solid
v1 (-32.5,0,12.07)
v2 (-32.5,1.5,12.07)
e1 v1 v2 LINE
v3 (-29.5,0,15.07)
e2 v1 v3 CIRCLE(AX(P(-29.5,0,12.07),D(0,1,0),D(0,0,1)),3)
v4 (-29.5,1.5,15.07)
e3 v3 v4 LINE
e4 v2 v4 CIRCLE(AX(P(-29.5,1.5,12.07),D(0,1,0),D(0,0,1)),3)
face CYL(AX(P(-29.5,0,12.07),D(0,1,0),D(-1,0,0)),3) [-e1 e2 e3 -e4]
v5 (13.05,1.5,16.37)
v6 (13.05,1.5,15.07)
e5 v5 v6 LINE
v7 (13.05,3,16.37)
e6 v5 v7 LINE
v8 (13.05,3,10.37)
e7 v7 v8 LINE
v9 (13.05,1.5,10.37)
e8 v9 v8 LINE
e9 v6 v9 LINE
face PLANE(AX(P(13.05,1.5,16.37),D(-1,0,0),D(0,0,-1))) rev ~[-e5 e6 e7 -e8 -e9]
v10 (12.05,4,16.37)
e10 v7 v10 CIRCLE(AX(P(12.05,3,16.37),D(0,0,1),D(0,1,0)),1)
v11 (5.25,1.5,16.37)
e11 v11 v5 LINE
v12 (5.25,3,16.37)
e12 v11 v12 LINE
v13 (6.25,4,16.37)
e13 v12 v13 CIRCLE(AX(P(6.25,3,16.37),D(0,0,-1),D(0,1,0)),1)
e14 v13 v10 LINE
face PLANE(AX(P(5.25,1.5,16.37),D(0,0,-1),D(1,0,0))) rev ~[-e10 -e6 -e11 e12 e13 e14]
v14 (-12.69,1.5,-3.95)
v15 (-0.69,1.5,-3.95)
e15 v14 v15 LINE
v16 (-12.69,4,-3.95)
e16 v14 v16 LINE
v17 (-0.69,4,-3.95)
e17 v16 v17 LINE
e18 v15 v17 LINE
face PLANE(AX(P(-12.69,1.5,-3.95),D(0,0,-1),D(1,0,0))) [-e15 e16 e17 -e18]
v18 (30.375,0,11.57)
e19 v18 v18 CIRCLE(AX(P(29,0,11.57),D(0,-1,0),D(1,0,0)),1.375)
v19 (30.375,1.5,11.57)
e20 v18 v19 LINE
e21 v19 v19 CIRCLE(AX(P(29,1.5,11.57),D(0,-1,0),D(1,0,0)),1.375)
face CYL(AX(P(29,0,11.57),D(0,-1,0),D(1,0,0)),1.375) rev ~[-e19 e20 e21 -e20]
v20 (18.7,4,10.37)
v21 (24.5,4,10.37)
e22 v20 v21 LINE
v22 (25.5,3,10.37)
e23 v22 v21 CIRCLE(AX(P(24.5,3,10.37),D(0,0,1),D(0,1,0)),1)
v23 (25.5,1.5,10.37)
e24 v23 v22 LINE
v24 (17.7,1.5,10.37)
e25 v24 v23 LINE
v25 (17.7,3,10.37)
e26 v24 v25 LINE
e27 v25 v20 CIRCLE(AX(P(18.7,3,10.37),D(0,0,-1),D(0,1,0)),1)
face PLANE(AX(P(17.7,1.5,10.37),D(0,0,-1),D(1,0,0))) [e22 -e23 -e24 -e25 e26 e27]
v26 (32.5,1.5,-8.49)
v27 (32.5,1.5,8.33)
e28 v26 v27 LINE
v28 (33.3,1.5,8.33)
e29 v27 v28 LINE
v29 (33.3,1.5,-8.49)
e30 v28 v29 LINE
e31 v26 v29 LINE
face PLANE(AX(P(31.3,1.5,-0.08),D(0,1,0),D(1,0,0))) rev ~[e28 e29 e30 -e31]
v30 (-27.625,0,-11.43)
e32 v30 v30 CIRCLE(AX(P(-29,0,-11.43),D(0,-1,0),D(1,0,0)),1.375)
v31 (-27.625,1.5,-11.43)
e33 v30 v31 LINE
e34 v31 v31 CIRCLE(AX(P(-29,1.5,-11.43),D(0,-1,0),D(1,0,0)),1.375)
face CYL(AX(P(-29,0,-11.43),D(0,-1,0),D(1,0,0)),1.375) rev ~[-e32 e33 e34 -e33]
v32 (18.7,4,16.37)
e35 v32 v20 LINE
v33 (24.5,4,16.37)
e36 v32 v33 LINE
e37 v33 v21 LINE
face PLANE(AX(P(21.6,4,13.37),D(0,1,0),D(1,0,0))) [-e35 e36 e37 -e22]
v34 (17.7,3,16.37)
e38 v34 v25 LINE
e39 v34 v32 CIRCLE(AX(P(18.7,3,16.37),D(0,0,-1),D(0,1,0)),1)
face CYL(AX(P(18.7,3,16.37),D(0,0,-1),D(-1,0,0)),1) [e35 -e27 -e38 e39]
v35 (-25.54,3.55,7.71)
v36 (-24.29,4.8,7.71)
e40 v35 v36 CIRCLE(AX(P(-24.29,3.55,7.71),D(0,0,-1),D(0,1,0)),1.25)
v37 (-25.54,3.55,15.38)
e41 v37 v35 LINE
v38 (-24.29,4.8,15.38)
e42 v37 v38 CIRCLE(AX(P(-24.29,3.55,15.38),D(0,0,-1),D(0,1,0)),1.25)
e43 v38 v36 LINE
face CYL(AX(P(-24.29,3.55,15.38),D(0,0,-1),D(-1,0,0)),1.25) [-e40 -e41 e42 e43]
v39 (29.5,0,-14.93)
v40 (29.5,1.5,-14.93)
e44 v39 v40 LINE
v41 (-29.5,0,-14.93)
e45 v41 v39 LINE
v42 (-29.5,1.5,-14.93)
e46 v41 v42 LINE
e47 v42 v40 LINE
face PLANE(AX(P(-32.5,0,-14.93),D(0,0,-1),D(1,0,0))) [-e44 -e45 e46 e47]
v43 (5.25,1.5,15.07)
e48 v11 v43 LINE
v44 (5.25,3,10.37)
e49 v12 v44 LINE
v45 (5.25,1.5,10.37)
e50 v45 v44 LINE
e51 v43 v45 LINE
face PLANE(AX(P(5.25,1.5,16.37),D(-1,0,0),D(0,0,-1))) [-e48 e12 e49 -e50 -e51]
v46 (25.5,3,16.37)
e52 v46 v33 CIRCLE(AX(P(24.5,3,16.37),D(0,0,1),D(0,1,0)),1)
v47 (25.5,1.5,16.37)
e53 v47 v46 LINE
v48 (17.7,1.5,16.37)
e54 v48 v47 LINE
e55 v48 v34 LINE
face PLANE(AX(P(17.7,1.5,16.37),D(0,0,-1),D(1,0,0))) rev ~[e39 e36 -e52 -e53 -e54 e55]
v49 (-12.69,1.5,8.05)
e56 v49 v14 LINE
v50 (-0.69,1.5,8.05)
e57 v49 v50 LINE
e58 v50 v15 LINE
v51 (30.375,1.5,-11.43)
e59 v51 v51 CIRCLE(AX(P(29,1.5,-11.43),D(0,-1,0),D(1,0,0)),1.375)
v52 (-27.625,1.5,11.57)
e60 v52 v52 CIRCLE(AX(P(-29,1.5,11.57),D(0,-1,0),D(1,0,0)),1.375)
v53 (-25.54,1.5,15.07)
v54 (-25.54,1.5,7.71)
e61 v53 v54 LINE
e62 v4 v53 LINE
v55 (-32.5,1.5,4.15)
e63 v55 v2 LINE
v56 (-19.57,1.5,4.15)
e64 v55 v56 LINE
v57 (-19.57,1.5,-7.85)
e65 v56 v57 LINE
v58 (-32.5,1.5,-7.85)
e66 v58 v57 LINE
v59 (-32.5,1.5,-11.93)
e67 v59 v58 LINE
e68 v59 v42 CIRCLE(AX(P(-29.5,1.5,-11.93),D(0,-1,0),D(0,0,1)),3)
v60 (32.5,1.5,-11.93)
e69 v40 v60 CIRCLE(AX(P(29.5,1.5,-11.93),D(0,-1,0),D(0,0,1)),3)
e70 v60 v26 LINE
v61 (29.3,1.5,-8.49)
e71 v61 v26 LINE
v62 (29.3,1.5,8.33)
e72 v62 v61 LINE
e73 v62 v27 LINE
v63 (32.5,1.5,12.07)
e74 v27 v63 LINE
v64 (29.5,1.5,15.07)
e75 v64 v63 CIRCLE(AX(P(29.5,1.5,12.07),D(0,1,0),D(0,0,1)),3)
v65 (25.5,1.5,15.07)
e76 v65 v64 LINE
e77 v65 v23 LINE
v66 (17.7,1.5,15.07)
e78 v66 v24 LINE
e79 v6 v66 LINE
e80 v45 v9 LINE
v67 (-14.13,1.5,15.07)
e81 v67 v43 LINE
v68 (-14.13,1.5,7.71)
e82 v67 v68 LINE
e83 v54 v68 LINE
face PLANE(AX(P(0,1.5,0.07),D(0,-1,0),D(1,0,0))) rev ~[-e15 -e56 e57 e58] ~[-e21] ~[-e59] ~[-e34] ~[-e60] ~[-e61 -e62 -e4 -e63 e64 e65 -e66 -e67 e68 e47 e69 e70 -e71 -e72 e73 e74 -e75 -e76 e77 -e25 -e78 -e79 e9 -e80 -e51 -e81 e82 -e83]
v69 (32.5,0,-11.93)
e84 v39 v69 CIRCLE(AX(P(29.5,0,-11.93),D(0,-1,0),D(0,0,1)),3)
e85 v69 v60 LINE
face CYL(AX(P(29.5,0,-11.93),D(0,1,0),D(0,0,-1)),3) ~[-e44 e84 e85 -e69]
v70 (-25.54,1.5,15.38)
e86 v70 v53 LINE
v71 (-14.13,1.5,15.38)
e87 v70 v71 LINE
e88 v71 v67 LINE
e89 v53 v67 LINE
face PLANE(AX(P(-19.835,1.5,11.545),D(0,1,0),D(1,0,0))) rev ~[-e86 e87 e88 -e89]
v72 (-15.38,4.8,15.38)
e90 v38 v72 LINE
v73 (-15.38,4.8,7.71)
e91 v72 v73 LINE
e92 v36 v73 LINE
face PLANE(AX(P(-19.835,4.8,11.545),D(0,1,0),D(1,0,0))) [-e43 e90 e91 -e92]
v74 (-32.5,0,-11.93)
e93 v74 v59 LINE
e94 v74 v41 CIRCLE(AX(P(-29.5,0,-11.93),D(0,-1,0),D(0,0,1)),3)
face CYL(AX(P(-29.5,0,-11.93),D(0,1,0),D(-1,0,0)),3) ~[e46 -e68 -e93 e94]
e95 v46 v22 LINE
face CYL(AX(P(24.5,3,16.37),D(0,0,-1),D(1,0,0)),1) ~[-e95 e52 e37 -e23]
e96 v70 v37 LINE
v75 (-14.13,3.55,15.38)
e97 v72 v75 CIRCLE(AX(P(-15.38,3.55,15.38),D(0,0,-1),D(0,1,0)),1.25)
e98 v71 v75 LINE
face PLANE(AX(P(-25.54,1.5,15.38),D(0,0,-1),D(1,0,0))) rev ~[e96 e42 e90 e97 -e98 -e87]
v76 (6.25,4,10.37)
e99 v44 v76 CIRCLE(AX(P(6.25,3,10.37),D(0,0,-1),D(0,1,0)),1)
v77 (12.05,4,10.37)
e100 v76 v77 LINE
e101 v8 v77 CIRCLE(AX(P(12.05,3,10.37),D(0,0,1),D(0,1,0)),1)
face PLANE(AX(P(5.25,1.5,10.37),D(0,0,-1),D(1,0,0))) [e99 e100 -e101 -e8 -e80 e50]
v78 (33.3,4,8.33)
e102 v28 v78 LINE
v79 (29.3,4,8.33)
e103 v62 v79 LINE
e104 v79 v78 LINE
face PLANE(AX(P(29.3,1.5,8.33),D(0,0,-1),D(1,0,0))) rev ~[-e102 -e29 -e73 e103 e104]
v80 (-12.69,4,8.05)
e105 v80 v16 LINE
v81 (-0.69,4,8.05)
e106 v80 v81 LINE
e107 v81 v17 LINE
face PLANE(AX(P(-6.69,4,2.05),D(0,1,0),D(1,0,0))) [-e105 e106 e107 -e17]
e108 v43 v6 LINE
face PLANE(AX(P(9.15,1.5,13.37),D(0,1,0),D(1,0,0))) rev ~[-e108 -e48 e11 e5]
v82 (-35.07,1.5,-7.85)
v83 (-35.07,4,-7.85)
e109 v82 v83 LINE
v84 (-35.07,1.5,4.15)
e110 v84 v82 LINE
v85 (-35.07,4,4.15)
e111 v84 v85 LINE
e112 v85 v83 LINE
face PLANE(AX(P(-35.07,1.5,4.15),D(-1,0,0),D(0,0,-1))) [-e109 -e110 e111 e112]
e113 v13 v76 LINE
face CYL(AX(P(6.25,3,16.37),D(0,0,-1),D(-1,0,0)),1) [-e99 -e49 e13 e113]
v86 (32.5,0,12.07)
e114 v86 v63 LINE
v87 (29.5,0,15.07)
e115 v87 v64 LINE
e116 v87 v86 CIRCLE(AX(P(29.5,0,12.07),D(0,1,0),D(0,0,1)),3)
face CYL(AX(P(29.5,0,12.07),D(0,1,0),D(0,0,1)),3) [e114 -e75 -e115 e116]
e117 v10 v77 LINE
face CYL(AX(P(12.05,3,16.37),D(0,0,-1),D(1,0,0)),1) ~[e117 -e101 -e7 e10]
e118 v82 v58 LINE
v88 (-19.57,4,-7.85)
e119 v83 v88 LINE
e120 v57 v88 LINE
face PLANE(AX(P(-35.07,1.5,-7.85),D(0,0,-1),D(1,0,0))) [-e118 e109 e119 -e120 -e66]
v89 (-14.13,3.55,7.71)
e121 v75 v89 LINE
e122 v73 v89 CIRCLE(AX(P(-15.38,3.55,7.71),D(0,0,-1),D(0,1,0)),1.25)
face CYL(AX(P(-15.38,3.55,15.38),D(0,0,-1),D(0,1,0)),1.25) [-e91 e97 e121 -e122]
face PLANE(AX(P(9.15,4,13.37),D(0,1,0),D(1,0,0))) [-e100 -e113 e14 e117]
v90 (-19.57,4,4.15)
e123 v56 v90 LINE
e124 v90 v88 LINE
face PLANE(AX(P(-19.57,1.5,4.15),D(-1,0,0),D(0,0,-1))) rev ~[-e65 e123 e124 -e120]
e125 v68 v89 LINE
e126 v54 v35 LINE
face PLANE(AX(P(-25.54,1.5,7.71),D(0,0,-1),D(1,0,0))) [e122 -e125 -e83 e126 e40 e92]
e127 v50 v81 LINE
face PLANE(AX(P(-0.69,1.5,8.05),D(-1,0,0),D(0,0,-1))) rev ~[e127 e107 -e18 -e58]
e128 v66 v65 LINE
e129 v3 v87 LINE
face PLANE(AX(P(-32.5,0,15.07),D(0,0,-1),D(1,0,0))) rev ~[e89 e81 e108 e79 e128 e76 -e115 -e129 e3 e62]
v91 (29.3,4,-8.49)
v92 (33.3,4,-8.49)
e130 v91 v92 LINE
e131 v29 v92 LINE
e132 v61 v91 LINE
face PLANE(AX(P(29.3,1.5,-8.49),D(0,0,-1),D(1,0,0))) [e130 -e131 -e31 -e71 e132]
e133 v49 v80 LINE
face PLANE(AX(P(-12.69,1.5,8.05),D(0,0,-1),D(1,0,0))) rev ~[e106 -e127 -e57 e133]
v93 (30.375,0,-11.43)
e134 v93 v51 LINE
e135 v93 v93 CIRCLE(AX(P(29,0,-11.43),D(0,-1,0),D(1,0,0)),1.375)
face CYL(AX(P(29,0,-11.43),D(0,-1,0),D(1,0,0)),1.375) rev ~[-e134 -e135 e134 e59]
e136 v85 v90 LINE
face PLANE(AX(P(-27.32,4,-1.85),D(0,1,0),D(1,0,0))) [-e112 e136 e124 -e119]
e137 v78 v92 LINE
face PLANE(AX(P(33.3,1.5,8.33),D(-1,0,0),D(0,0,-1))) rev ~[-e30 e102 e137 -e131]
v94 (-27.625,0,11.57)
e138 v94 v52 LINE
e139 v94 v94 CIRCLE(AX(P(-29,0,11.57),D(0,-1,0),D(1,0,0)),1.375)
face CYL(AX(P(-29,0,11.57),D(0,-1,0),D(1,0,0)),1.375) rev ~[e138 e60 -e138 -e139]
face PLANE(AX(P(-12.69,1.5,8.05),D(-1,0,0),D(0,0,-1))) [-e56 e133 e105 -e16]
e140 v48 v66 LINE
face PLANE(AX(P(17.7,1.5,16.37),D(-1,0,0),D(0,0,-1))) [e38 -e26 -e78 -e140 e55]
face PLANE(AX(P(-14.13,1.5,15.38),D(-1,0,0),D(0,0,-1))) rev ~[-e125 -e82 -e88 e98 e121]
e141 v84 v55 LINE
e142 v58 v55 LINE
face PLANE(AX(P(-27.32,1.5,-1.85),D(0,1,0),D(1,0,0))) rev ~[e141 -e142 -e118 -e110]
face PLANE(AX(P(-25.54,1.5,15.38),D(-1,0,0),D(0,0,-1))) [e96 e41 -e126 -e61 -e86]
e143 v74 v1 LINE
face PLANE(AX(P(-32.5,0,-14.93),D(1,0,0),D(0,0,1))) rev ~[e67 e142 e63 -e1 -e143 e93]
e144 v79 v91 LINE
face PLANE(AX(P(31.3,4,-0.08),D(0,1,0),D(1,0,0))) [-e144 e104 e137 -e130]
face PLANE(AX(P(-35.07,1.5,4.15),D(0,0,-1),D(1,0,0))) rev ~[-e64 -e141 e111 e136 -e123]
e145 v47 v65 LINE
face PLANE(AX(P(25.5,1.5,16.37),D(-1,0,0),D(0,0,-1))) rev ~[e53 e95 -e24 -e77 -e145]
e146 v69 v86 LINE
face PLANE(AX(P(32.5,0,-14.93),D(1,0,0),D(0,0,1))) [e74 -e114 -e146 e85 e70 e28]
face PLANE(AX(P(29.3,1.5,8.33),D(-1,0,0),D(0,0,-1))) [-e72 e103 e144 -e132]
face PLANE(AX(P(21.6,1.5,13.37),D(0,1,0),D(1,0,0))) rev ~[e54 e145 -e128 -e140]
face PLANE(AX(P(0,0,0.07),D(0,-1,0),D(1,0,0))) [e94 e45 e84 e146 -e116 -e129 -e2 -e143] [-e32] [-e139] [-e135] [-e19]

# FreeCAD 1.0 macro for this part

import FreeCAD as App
import Part
import Sketcher


def edges_at(feature, points):
    """Names of the edges that pass closest to the given points."""
    edges = feature.Shape.Edges
    near = lambda p: min(range(len(edges)), key=lambda i: edges[i].distToShape(Part.Vertex(*p))[0])
    return sorted({f"Edge{near(p) + 1}" for p in points})

doc = App.newDocument("Part")
body = doc.addObject("PartDesign::Body", "Body")

sketch1 = body.newObject("Sketcher::SketchObject", "Sketch")
sketch1.AttachmentSupport = (doc.getObject("XZ_Plane"), [""])
sketch1.MapMode = "FlatFace"
sketch1.addGeometry([
    Part.LineSegment(App.Vector(-32.5, 15.1, 0), App.Vector(-32.5, -14.9, 0)),
    Part.LineSegment(App.Vector(-32.5, -14.9, 0), App.Vector(32.5, -14.9, 0)),
    Part.LineSegment(App.Vector(32.5, -14.9, 0), App.Vector(32.5, 15.1, 0)),
    Part.LineSegment(App.Vector(32.5, 15.1, 0), App.Vector(-32.5, 15.1, 0)),
    Part.Circle(App.Vector(-29, -11.4, 0), App.Vector(0, 0, 1), 1.4),
    Part.Circle(App.Vector(29, -11.4, 0), App.Vector(0, 0, 1), 1.4),
    Part.Circle(App.Vector(-29, 11.6, 0), App.Vector(0, 0, 1), 1.4),
    Part.Circle(App.Vector(29, 11.6, 0), App.Vector(0, 0, 1), 1.4),
], False)
sketch1.addConstraint([
    Sketcher.Constraint("Coincident", 0, 2, 1, 1),
    Sketcher.Constraint("Coincident", 1, 2, 2, 1),
    Sketcher.Constraint("Coincident", 2, 2, 3, 1),
    Sketcher.Constraint("Coincident", 3, 2, 0, 1),
    Sketcher.Constraint("Vertical", 0),
    Sketcher.Constraint("Horizontal", 1),
    Sketcher.Constraint("Vertical", 2),
    Sketcher.Constraint("Horizontal", 3),
    Sketcher.Constraint("Equal", 4, 5),
    Sketcher.Constraint("Equal", 5, 6),
    Sketcher.Constraint("Equal", 6, 7),
    Sketcher.Constraint("Symmetric", 4, 3, 5, 3, -2),
    Sketcher.Constraint("Symmetric", 6, 3, 7, 3, -2),
    Sketcher.Constraint("Vertical", 4, 3, 6, 3),
    Sketcher.Constraint("Diameter", 4, 2.75),
    Sketcher.Constraint("DistanceX", 1, 1, 1, 2, 65.0),
    Sketcher.Constraint("DistanceY", 0, 2, 0, 1, 30.0),
    Sketcher.Constraint("DistanceX", 4, 3, -1, 1, 29.0),
    Sketcher.Constraint("DistanceY", 4, 3, 6, 3, 23.0),
    Sketcher.Constraint("DistanceX", 0, 2, -1, 1, 32.5),
    Sketcher.Constraint("DistanceY", 0, 2, 4, 3, 3.5),
    Sketcher.Constraint("DistanceY", 4, 3, -1, 1, 11.43),
])
pad1 = body.newObject("PartDesign::Pad", "Pad")
pad1.Profile = sketch1
pad1.Length = 1.5
pad1.Reversed = True
doc.recompute()

fillet = body.newObject("PartDesign::Fillet", "Fillet")
fillet.Base = (pad1, edges_at(pad1, [
    (-32.5, 0.75, 15.07),
    (-32.5, 0.75, -14.93),
    (32.5, 0.75, -14.93),
    (32.5, 0.75, 15.07),
]))
fillet.Radius = 3

sketch2 = body.newObject("Sketcher::SketchObject", "Sketch001")
sketch2.AttachmentSupport = (doc.getObject("XZ_Plane"), [""])
sketch2.MapMode = "FlatFace"
sketch2.AttachmentOffset = App.Placement(App.Vector(0, 0, -1.5), App.Rotation())
sketch2.addGeometry([
    Part.LineSegment(App.Vector(-35.1, -7.8, 0), App.Vector(-35.1, 4.2, 0)),
    Part.LineSegment(App.Vector(-35.1, 4.2, 0), App.Vector(-19.6, 4.2, 0)),
    Part.LineSegment(App.Vector(-19.6, 4.2, 0), App.Vector(-19.6, -7.8, 0)),
    Part.LineSegment(App.Vector(-19.6, -7.8, 0), App.Vector(-35.1, -7.8, 0)),
    Part.LineSegment(App.Vector(-12.7, -4, 0), App.Vector(-12.7, 8.1, 0)),
    Part.LineSegment(App.Vector(-12.7, 8.1, 0), App.Vector(-0.7, 8.1, 0)),
    Part.LineSegment(App.Vector(-0.7, 8.1, 0), App.Vector(-0.7, -4, 0)),
    Part.LineSegment(App.Vector(-0.7, -4, 0), App.Vector(-12.7, -4, 0)),
    Part.LineSegment(App.Vector(29.3, -8.5, 0), App.Vector(29.3, 8.3, 0)),
    Part.LineSegment(App.Vector(29.3, 8.3, 0), App.Vector(33.3, 8.3, 0)),
    Part.LineSegment(App.Vector(33.3, 8.3, 0), App.Vector(33.3, -8.5, 0)),
    Part.LineSegment(App.Vector(33.3, -8.5, 0), App.Vector(29.3, -8.5, 0)),
    Part.LineSegment(App.Vector(17.7, 10.4, 0), App.Vector(17.7, 16.4, 0)),
    Part.LineSegment(App.Vector(17.7, 16.4, 0), App.Vector(25.5, 16.4, 0)),
    Part.LineSegment(App.Vector(25.5, 16.4, 0), App.Vector(25.5, 10.4, 0)),
    Part.LineSegment(App.Vector(25.5, 10.4, 0), App.Vector(17.7, 10.4, 0)),
    Part.LineSegment(App.Vector(5.2, 10.4, 0), App.Vector(5.2, 16.4, 0)),
    Part.LineSegment(App.Vector(5.2, 16.4, 0), App.Vector(13.1, 16.4, 0)),
    Part.LineSegment(App.Vector(13.1, 16.4, 0), App.Vector(13.1, 10.4, 0)),
    Part.LineSegment(App.Vector(13.1, 10.4, 0), App.Vector(5.2, 10.4, 0)),
], False)
sketch2.addConstraint([
    Sketcher.Constraint("Coincident", 0, 2, 1, 1),
    Sketcher.Constraint("Coincident", 1, 2, 2, 1),
    Sketcher.Constraint("Coincident", 2, 2, 3, 1),
    Sketcher.Constraint("Coincident", 3, 2, 0, 1),
    Sketcher.Constraint("Coincident", 4, 2, 5, 1),
    Sketcher.Constraint("Coincident", 5, 2, 6, 1),
    Sketcher.Constraint("Coincident", 6, 2, 7, 1),
    Sketcher.Constraint("Coincident", 7, 2, 4, 1),
    Sketcher.Constraint("Coincident", 8, 2, 9, 1),
    Sketcher.Constraint("Coincident", 9, 2, 10, 1),
    Sketcher.Constraint("Coincident", 10, 2, 11, 1),
    Sketcher.Constraint("Coincident", 11, 2, 8, 1),
    Sketcher.Constraint("Coincident", 12, 2, 13, 1),
    Sketcher.Constraint("Coincident", 13, 2, 14, 1),
    Sketcher.Constraint("Coincident", 14, 2, 15, 1),
    Sketcher.Constraint("Coincident", 15, 2, 12, 1),
    Sketcher.Constraint("Coincident", 16, 2, 17, 1),
    Sketcher.Constraint("Coincident", 17, 2, 18, 1),
    Sketcher.Constraint("Coincident", 18, 2, 19, 1),
    Sketcher.Constraint("Coincident", 19, 2, 16, 1),
    Sketcher.Constraint("Vertical", 0),
    Sketcher.Constraint("Horizontal", 1),
    Sketcher.Constraint("Vertical", 2),
    Sketcher.Constraint("Horizontal", 3),
    Sketcher.Constraint("Vertical", 4),
    Sketcher.Constraint("Horizontal", 5),
    Sketcher.Constraint("Vertical", 6),
    Sketcher.Constraint("Horizontal", 7),
    Sketcher.Constraint("Vertical", 8),
    Sketcher.Constraint("Horizontal", 9),
    Sketcher.Constraint("Vertical", 10),
    Sketcher.Constraint("Horizontal", 11),
    Sketcher.Constraint("Vertical", 12),
    Sketcher.Constraint("Horizontal", 13),
    Sketcher.Constraint("Vertical", 14),
    Sketcher.Constraint("Horizontal", 15),
    Sketcher.Constraint("Vertical", 16),
    Sketcher.Constraint("Horizontal", 17),
    Sketcher.Constraint("Vertical", 18),
    Sketcher.Constraint("Horizontal", 19),
    Sketcher.Constraint("Horizontal", 13, 2, 16, 2),
    Sketcher.Constraint("Horizontal", 15, 2, 18, 2),
    Sketcher.Constraint("Equal", 15, 17),
    Sketcher.Constraint("Equal", 7, 0),
    Sketcher.Constraint("Equal", 2, 4),
    Sketcher.Constraint("DistanceX", 5, 1, 5, 2, 12.0),
    Sketcher.Constraint("DistanceX", 9, 1, 9, 2, 4.0),
    Sketcher.Constraint("DistanceY", 12, 1, 12, 2, 6.0),
    Sketcher.Constraint("DistanceX", 1, 1, 1, 2, 15.5),
    Sketcher.Constraint("DistanceX", 13, 1, 13, 2, 7.8),
    Sketcher.Constraint("DistanceY", 8, 1, 8, 2, 16.82),
    Sketcher.Constraint("DistanceX", -1, 1, 8, 2, 29.3),
    Sketcher.Constraint("DistanceX", -1, 1, 12, 2, 17.7),
    Sketcher.Constraint("DistanceY", 1, 2, 4, 2, 3.9),
    Sketcher.Constraint("DistanceX", 0, 2, -1, 1, 35.07),
    Sketcher.Constraint("DistanceY", -1, 1, 0, 2, 4.15),
    Sketcher.Constraint("DistanceX", 4, 2, -1, 1, 12.69),
    Sketcher.Constraint("DistanceY", -1, 1, 8, 2, 8.33),
    Sketcher.Constraint("DistanceY", -1, 1, 12, 2, 16.37),
    Sketcher.Constraint("DistanceX", -1, 1, 16, 2, 5.25),
])
pad2 = body.newObject("PartDesign::Pad", "Pad001")
pad2.Profile = sketch2
pad2.Length = 2.5
pad2.Reversed = True

sketch3 = body.newObject("Sketcher::SketchObject", "Sketch002")
sketch3.AttachmentSupport = (doc.getObject("XZ_Plane"), [""])
sketch3.MapMode = "FlatFace"
sketch3.AttachmentOffset = App.Placement(App.Vector(0, 0, -1.5), App.Rotation())
sketch3.addGeometry([
    Part.LineSegment(App.Vector(-26, 8, 0), App.Vector(-26, 15, 0)),
    Part.LineSegment(App.Vector(-26, 15, 0), App.Vector(-14, 15, 0)),
    Part.LineSegment(App.Vector(-14, 15, 0), App.Vector(-14, 8, 0)),
    Part.LineSegment(App.Vector(-14, 8, 0), App.Vector(-26, 8, 0)),
], False)
sketch3.addConstraint([
    Sketcher.Constraint("Coincident", 0, 2, 1, 1),
    Sketcher.Constraint("Coincident", 1, 2, 2, 1),
    Sketcher.Constraint("Coincident", 2, 2, 3, 1),
    Sketcher.Constraint("Coincident", 3, 2, 0, 1),
    Sketcher.Constraint("Vertical", 0),
    Sketcher.Constraint("Horizontal", 1),
    Sketcher.Constraint("Vertical", 2),
    Sketcher.Constraint("Horizontal", 3),
    Sketcher.Constraint("DistanceX", 1, 1, 1, 2, 11.41),
    Sketcher.Constraint("DistanceY", 0, 1, 0, 2, 7.67),
    Sketcher.Constraint("DistanceX", 0, 2, -1, 1, 25.54),
    Sketcher.Constraint("DistanceY", -1, 1, 0, 2, 15.38),
])
pad3 = body.newObject("PartDesign::Pad", "Pad002")
pad3.Profile = sketch3
pad3.Length = 3.3
pad3.Reversed = True
doc.recompute()

fillet2 = body.newObject("PartDesign::Fillet", "Fillet001")
fillet2.Base = (pad3, edges_at(pad3, [(-25.54, 4.8, 11.545), (-14.13, 4.8, 11.545)]))
fillet2.Radius = 1.25
doc.recompute()

fillet3 = body.newObject("PartDesign::Fillet", "Fillet002")
fillet3.Base = (fillet2, edges_at(fillet2, [
    (5.25, 4, 13.37),
    (13.05, 4, 13.37),
    (17.7, 4, 13.37),
    (25.5, 4, 13.37),
]))
fillet3.Radius = 1

doc.recompute()
